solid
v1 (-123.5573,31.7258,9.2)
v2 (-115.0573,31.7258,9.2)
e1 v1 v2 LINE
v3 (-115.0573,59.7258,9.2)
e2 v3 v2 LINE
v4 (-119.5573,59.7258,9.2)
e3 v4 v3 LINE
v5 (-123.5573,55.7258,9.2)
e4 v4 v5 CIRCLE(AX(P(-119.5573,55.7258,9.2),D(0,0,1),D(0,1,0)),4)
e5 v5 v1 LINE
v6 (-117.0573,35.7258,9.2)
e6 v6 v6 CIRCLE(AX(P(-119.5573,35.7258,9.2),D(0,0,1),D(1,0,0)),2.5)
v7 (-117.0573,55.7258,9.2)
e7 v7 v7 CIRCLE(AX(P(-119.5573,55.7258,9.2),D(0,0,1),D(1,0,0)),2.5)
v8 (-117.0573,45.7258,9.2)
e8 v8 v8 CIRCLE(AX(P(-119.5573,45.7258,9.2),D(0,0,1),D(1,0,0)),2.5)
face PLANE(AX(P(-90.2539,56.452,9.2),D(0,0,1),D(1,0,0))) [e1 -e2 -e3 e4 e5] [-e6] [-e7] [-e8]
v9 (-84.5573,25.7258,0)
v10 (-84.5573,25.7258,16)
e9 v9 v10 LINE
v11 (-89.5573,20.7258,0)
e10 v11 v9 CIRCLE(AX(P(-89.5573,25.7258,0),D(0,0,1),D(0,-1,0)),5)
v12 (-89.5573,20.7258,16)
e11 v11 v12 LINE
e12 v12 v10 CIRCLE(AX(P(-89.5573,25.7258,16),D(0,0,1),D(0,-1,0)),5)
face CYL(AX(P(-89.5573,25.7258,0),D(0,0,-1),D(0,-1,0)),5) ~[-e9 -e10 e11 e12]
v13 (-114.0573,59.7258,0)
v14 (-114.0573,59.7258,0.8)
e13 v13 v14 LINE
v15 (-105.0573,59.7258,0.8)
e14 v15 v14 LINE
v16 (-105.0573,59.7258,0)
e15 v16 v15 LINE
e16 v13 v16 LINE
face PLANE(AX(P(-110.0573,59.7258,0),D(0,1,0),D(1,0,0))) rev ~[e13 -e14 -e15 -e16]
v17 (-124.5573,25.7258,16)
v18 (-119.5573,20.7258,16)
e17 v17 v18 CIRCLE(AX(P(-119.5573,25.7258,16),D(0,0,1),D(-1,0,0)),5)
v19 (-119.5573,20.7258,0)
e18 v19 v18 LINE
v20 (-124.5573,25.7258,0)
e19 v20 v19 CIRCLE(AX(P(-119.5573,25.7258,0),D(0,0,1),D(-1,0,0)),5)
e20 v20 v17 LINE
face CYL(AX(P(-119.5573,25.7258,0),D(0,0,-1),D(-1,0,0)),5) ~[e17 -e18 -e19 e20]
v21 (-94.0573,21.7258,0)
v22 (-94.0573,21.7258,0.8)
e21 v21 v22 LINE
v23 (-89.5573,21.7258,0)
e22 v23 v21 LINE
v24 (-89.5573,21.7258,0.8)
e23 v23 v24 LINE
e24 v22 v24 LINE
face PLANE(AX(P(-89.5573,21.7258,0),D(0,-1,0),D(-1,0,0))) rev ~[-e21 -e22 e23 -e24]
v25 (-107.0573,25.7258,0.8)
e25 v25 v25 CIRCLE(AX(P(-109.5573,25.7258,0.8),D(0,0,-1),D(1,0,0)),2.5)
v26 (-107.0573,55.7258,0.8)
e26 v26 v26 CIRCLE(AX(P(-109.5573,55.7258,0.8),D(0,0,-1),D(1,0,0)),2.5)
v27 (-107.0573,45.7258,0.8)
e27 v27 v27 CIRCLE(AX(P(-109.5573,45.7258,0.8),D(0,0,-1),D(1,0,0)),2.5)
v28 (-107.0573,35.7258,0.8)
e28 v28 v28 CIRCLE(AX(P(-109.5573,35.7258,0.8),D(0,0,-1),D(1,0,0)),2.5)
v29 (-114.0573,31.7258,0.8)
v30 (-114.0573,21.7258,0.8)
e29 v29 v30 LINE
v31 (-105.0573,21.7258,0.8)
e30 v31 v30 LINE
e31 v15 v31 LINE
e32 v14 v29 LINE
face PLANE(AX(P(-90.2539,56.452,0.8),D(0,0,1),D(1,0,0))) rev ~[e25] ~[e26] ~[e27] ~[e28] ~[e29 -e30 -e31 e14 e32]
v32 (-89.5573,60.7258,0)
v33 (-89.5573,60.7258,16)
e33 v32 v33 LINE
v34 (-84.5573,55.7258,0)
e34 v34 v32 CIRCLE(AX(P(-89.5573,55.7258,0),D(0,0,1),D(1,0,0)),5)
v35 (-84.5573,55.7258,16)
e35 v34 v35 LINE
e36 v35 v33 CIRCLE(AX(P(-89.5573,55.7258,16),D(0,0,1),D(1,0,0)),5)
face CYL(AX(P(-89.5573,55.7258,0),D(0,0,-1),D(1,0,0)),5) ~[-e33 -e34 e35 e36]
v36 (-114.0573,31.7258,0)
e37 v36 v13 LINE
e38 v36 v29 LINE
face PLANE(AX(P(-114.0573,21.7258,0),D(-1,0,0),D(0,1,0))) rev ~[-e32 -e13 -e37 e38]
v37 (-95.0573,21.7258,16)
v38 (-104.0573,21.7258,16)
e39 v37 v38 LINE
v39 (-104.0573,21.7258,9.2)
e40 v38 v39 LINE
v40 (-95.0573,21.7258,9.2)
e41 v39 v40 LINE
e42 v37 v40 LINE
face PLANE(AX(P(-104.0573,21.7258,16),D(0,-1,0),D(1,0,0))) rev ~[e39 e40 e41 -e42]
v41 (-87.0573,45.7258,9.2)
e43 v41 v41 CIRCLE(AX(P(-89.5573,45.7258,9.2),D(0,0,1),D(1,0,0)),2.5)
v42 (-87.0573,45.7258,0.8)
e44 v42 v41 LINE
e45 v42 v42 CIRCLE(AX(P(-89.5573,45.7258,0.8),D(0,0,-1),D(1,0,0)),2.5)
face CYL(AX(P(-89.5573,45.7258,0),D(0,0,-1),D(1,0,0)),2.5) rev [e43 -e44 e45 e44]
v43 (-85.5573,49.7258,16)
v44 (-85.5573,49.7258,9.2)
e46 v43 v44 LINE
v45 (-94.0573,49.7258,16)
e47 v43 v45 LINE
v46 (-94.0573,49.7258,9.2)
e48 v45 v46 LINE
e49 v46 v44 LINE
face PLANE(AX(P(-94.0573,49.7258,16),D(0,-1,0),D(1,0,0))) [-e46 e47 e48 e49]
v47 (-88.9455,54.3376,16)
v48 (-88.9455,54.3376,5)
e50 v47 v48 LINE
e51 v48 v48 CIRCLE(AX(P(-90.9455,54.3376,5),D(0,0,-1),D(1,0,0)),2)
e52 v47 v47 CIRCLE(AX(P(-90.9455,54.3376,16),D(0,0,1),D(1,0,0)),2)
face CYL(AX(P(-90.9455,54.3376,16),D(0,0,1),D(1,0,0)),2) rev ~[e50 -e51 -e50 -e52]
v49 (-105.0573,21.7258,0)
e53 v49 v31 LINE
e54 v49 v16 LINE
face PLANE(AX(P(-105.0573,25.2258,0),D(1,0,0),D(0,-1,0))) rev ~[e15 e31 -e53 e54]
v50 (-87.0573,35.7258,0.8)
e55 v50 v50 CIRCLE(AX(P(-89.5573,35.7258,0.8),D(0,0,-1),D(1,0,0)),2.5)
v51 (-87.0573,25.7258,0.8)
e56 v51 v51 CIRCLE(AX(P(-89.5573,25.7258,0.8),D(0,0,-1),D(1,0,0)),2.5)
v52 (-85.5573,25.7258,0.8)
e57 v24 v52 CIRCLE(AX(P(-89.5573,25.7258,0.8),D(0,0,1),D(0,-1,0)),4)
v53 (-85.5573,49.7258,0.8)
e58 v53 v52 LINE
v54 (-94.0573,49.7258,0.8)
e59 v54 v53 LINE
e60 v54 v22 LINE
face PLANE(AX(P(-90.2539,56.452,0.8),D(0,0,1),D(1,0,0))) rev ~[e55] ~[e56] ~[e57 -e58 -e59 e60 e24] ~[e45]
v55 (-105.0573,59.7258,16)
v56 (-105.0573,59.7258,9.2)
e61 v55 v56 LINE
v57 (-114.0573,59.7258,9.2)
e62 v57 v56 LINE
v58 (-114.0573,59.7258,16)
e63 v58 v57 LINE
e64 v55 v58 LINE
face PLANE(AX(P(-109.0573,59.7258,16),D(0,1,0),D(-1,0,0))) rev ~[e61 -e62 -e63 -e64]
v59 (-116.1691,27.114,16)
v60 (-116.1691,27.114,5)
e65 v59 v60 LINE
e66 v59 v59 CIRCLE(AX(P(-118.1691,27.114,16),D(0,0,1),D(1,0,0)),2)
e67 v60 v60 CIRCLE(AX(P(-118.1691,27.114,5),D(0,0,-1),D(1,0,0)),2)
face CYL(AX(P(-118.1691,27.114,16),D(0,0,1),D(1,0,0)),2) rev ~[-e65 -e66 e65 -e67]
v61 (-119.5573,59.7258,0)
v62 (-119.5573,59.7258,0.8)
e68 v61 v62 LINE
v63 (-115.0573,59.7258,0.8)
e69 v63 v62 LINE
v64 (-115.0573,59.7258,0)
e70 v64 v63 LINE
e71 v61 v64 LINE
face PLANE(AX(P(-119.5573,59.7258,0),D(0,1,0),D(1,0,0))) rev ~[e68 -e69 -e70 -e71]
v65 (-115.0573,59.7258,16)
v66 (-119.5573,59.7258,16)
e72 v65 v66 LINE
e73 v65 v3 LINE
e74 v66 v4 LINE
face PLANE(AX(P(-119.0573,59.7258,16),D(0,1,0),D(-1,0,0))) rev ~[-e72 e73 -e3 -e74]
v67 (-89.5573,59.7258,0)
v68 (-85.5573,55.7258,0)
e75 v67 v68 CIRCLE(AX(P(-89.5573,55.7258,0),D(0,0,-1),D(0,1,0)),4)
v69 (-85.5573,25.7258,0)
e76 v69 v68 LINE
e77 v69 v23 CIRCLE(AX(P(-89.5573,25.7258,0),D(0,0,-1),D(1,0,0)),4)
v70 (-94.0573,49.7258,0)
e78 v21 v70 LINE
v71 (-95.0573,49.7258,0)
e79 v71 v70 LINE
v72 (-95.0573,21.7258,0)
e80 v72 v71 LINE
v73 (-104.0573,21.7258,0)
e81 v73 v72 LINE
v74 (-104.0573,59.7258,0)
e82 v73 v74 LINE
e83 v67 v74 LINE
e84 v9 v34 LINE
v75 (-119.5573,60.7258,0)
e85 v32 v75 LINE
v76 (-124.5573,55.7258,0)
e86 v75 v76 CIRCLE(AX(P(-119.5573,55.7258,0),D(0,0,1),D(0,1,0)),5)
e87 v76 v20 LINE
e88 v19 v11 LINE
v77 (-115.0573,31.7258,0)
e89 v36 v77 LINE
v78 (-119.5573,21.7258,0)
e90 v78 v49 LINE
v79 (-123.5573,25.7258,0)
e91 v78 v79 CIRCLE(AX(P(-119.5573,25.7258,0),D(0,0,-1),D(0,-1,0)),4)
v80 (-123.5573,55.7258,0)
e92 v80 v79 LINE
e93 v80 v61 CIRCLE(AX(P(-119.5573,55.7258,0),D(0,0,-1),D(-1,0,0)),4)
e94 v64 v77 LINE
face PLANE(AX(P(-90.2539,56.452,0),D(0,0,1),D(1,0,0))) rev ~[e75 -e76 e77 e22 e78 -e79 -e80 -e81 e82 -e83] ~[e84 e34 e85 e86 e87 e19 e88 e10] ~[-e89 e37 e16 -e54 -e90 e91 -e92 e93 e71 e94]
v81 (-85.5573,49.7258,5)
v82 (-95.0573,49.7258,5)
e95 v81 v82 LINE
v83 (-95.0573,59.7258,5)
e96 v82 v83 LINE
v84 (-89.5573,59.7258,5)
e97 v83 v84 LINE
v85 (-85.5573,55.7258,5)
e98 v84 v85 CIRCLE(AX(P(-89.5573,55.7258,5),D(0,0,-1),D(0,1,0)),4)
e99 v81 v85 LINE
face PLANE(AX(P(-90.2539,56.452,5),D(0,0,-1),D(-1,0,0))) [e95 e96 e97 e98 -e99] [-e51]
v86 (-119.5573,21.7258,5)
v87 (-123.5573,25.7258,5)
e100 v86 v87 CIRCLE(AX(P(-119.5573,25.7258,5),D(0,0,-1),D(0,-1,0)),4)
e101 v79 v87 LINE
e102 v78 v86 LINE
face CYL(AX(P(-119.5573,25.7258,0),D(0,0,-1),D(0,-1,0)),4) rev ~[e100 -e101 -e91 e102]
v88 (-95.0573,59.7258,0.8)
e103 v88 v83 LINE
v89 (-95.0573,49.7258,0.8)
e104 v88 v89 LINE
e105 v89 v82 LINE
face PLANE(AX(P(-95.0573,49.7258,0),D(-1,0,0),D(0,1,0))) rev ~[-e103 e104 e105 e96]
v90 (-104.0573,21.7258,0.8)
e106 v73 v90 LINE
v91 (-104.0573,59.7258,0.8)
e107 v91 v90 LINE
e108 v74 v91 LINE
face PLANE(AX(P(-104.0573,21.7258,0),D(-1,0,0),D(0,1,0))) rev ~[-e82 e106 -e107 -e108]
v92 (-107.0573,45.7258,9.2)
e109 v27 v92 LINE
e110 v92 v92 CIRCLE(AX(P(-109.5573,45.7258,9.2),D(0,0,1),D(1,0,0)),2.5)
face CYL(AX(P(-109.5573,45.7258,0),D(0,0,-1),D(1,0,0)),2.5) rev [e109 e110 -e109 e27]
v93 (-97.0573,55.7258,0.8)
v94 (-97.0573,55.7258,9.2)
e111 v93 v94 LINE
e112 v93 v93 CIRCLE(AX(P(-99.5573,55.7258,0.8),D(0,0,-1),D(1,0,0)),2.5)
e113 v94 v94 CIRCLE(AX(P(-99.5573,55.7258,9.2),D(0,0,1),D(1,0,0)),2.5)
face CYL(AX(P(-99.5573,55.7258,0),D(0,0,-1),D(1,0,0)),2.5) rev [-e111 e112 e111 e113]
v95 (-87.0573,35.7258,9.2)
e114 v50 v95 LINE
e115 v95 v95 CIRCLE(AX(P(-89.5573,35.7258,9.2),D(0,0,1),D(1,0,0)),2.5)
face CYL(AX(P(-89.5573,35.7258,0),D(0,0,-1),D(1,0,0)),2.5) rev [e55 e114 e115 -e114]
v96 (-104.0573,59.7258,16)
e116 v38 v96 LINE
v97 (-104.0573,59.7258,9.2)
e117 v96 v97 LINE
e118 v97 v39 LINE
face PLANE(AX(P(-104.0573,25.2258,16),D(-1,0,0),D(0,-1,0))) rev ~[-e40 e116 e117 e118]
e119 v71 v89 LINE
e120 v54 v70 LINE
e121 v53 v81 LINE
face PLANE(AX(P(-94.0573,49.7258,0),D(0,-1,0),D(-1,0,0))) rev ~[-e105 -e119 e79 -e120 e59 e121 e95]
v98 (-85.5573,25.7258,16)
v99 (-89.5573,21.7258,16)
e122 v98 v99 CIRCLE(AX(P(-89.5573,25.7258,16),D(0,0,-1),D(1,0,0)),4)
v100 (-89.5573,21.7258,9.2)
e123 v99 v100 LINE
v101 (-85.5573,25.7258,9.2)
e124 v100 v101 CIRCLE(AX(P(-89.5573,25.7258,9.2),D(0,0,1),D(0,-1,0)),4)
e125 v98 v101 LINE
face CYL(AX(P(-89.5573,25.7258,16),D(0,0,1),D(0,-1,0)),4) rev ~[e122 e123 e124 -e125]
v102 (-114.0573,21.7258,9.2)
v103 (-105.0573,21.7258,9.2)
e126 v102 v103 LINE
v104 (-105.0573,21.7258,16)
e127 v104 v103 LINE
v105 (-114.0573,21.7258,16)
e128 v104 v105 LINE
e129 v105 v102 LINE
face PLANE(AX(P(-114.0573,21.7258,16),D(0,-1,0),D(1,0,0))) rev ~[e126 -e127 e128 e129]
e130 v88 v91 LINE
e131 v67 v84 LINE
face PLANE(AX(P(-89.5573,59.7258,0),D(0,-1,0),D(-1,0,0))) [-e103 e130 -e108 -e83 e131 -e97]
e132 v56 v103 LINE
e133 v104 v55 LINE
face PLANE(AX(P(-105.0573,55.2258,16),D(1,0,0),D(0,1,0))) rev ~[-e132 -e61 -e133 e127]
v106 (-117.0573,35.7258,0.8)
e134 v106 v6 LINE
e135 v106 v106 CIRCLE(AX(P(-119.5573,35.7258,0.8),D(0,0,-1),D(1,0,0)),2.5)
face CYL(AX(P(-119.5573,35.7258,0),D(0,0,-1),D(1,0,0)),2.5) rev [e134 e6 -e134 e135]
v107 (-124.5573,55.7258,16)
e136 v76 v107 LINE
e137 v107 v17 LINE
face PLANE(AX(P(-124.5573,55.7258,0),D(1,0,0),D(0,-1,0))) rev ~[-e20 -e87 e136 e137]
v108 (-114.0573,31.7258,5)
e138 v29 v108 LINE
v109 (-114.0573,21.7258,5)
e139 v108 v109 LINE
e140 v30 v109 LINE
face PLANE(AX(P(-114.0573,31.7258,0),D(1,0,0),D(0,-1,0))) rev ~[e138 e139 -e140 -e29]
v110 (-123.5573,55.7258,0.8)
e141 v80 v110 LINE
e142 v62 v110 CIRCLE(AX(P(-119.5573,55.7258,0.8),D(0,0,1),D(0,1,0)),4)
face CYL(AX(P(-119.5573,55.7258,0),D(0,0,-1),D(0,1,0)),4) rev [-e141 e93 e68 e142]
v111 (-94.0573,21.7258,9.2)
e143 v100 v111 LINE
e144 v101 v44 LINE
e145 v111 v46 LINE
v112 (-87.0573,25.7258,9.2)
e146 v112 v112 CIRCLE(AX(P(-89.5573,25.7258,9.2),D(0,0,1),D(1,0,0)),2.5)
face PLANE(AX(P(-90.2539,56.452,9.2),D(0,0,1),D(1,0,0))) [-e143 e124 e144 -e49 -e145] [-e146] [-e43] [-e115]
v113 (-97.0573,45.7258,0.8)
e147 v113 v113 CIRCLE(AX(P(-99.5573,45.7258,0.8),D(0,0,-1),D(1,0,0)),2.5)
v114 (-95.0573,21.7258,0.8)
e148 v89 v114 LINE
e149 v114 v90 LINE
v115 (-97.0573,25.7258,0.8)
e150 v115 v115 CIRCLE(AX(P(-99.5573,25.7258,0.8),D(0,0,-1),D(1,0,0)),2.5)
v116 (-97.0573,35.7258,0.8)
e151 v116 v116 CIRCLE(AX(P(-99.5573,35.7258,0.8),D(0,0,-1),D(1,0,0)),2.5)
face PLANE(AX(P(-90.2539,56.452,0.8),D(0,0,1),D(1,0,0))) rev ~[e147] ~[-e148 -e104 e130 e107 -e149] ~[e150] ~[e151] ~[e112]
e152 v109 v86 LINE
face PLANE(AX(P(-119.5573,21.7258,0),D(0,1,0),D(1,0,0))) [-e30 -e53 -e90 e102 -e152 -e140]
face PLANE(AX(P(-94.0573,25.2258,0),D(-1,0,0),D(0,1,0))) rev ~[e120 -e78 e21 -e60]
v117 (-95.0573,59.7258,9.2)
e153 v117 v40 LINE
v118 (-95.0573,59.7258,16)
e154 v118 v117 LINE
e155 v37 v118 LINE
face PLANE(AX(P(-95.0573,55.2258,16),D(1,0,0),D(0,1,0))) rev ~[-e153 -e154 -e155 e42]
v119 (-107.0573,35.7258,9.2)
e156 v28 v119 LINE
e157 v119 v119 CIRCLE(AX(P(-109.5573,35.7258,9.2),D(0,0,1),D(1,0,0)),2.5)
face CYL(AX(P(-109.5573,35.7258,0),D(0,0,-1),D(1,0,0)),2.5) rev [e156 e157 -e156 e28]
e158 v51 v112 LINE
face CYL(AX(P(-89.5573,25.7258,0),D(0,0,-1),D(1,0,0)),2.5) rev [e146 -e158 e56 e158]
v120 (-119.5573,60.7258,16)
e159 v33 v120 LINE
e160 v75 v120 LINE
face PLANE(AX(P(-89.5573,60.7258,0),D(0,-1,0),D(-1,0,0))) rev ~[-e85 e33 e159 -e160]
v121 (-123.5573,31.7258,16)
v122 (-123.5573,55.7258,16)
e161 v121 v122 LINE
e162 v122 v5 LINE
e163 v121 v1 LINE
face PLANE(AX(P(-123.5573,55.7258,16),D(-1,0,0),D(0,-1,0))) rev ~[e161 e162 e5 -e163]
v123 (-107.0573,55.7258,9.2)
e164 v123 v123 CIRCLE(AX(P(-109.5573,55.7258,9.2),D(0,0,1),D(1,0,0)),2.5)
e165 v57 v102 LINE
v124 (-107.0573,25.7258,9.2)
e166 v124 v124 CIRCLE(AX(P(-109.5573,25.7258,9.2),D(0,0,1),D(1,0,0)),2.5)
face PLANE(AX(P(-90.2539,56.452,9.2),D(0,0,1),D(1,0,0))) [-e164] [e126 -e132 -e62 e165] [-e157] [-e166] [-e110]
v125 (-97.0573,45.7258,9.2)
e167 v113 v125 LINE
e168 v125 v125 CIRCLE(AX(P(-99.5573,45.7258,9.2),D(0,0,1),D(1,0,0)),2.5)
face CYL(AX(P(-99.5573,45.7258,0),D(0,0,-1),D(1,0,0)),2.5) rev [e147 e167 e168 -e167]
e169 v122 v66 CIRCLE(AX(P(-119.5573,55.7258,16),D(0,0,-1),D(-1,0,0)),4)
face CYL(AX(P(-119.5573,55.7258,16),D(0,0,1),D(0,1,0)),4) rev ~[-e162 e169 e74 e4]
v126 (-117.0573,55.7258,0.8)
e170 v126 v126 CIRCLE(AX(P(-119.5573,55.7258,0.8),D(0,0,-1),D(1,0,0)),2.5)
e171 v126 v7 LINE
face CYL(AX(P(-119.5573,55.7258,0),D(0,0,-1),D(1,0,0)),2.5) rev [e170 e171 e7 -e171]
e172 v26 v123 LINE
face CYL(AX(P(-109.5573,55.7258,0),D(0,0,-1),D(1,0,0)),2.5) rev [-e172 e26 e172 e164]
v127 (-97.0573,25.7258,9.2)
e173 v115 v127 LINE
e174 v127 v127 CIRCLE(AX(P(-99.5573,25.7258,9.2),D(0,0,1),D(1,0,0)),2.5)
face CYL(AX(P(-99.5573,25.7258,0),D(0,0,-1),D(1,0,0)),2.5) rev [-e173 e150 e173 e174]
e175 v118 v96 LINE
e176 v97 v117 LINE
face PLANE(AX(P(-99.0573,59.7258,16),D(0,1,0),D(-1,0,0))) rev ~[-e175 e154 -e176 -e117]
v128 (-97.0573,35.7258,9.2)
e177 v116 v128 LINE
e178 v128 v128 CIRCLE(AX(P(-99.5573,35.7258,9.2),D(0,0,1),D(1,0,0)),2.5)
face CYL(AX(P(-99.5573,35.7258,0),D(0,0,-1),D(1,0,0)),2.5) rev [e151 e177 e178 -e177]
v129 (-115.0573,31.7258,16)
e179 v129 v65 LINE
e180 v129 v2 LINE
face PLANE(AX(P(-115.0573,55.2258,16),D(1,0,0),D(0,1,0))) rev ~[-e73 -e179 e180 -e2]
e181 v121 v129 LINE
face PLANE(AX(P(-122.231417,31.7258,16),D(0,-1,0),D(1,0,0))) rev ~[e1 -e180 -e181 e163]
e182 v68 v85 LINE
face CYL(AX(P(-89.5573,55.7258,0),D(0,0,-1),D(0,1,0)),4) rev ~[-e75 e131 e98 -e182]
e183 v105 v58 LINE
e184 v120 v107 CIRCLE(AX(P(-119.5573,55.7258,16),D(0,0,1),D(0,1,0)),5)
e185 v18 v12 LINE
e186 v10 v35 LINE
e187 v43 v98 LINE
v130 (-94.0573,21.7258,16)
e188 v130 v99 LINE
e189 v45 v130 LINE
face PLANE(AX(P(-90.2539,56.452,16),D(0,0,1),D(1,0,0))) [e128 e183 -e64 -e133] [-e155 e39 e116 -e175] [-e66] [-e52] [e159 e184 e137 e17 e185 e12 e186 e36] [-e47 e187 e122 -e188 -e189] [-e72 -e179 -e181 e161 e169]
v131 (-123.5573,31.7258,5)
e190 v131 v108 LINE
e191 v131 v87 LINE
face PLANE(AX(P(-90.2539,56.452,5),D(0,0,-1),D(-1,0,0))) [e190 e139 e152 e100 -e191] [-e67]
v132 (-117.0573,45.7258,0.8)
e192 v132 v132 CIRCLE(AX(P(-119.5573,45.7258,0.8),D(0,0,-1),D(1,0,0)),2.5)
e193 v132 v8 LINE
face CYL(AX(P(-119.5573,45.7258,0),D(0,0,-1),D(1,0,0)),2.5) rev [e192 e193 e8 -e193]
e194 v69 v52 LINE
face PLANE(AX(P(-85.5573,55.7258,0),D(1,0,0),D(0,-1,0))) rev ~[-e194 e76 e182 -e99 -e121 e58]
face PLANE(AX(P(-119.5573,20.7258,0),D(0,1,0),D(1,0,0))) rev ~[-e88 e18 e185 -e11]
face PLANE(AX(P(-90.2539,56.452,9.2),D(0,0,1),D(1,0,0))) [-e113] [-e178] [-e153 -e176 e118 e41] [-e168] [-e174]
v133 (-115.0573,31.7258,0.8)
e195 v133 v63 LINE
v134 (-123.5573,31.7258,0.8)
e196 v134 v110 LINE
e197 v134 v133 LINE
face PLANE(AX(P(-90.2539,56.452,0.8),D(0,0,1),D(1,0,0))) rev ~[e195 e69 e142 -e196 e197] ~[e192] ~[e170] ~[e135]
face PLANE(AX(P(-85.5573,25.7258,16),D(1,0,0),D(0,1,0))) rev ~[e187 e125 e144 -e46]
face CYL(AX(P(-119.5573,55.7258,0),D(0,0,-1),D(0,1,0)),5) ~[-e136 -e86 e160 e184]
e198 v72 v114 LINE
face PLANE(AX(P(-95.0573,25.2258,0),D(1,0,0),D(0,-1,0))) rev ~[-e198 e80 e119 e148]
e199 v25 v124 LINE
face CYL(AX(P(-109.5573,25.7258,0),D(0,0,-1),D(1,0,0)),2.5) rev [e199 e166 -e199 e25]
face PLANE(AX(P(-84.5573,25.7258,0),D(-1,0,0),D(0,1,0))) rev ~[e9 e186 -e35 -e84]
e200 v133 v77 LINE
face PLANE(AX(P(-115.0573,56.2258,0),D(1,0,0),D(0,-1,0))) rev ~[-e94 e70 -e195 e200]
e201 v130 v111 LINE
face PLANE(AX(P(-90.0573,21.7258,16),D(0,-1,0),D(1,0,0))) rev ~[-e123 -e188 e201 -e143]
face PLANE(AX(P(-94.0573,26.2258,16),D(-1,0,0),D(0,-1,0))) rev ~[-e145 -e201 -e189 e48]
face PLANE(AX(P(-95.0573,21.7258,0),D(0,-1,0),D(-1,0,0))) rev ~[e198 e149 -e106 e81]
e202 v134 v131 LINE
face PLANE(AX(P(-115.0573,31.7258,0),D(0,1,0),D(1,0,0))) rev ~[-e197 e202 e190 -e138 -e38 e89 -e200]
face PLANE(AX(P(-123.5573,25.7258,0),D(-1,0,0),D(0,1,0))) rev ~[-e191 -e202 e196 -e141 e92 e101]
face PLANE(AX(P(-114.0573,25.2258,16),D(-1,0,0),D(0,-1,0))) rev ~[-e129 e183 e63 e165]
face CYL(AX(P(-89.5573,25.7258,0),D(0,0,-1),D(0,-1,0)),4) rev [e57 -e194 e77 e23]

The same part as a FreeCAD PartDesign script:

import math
import FreeCAD as App
import Part
import Sketcher
Q = App.Units.Quantity


def add_polygon(sketch, points):
    """Adds a closed chain of lines whose ends are joined by coincident constraints."""
    first, n = sketch.GeometryCount, len(points)
    for a, b in zip(points, points[1:] + points[:1]):
        sketch.addGeometry(Part.LineSegment(App.Vector(*a, 0), App.Vector(*b, 0)), False)
    for i in range(n):
        sketch.addConstraint(Sketcher.Constraint("Coincident", first + i, 2, first + (i + 1) % n, 1))

doc = App.newDocument("Part")
body = doc.addObject("PartDesign::Body", "Body")
body.AllowCompound = True

sketch1 = body.newObject("Sketcher::SketchObject", "Sketch")
sketch1.AttachmentSupport = (doc.getObject("XY_Plane"), [""])
sketch1.MapMode = "FlatFace"
sketch1.addGeometry(Part.ArcOfCircle(Part.Circle(App.Vector(-89.6, 55.7, 0), App.Vector(0, 0, 1), 4), math.radians(0), math.radians(90)), False)
sketch1.addGeometry(Part.LineSegment(App.Vector(-89.6, 59.7, 0), App.Vector(-94.1, 59.7, 0)), False)
sketch1.addGeometry(Part.LineSegment(App.Vector(-94.1, 59.7, 0), App.Vector(-94.1, 21.7, 0)), False)
sketch1.addGeometry(Part.LineSegment(App.Vector(-94.1, 21.7, 0), App.Vector(-89.6, 21.7, 0)), False)
sketch1.addGeometry(Part.ArcOfCircle(Part.Circle(App.Vector(-89.6, 25.7, 0), App.Vector(0, 0, 1), 4), math.radians(-90), math.radians(0)), False)
sketch1.addGeometry(Part.LineSegment(App.Vector(-85.6, 25.7, 0), App.Vector(-85.6, 55.7, 0)), False)
add_polygon(sketch1, [(-95.1, 21.7), (-95.1, 59.7), (-104.1, 59.7), (-104.1, 21.7)])
add_polygon(sketch1, [(-105.1, 21.7), (-105.1, 59.7), (-114.1, 59.7), (-114.1, 21.7)])
sketch1.addGeometry(Part.ArcOfCircle(Part.Circle(App.Vector(-119.6, 25.7, 0), App.Vector(0, 0, 1), 4), math.radians(180), math.radians(270)), False)
sketch1.addGeometry(Part.LineSegment(App.Vector(-119.6, 21.7, 0), App.Vector(-115.1, 21.7, 0)), False)
sketch1.addGeometry(Part.LineSegment(App.Vector(-115.1, 21.7, 0), App.Vector(-115.1, 59.7, 0)), False)
sketch1.addGeometry(Part.LineSegment(App.Vector(-115.1, 59.7, 0), App.Vector(-119.6, 59.7, 0)), False)
sketch1.addGeometry(Part.ArcOfCircle(Part.Circle(App.Vector(-119.6, 55.7, 0), App.Vector(0, 0, 1), 4), math.radians(90), math.radians(180)), False)
sketch1.addGeometry(Part.LineSegment(App.Vector(-123.6, 55.7, 0), App.Vector(-123.6, 25.7, 0)), False)
sketch1.addConstraint([
    Sketcher.Constraint("Tangent", 0, 2, 1, 1),
    Sketcher.Constraint("Coincident", 1, 2, 2, 1),
    Sketcher.Constraint("Coincident", 2, 2, 3, 1),
    Sketcher.Constraint("Tangent", 3, 2, 4, 1),
    Sketcher.Constraint("Tangent", 4, 2, 5, 1),
    Sketcher.Constraint("Tangent", 5, 2, 0, 1),
    Sketcher.Constraint("Tangent", 14, 2, 15, 1),
    Sketcher.Constraint("Coincident", 15, 2, 16, 1),
    Sketcher.Constraint("Coincident", 16, 2, 17, 1),
    Sketcher.Constraint("Tangent", 17, 2, 18, 1),
    Sketcher.Constraint("Tangent", 18, 2, 19, 1),
    Sketcher.Constraint("Tangent", 19, 2, 14, 1),
    Sketcher.Constraint("Horizontal", 1),
    Sketcher.Constraint("Vertical", 2),
    Sketcher.Constraint("Horizontal", 3),
    Sketcher.Constraint("Vertical", 5),
    Sketcher.Constraint("Vertical", 6),
    Sketcher.Constraint("Horizontal", 7),
    Sketcher.Constraint("Vertical", 8),
    Sketcher.Constraint("Horizontal", 9),
    Sketcher.Constraint("Vertical", 10),
    Sketcher.Constraint("Horizontal", 11),
    Sketcher.Constraint("Vertical", 12),
    Sketcher.Constraint("Horizontal", 13),
    Sketcher.Constraint("Horizontal", 15),
    Sketcher.Constraint("Vertical", 16),
    Sketcher.Constraint("Horizontal", 17),
    Sketcher.Constraint("Vertical", 19),
    Sketcher.Constraint("Equal", 0, 4),
    Sketcher.Constraint("Equal", 4, 14),
    Sketcher.Constraint("Equal", 14, 18),
    Sketcher.Constraint("Horizontal", 4, 3, 14, 3),
    Sketcher.Constraint("Horizontal", 0, 3, 18, 3),
    Sketcher.Constraint("Horizontal", 1, 2, 6, 2),
    Sketcher.Constraint("Horizontal", 3, 2, 8, 2),
    Sketcher.Constraint("Horizontal", 7, 2, 10, 2),
    Sketcher.Constraint("Horizontal", 9, 2, 12, 2),
    Sketcher.Constraint("Equal", 9, 11),
    Sketcher.Constraint("Equal", 3, 15),
    Sketcher.Constraint("Radius", 0, Q("4 mm")),
    Sketcher.Constraint("DistanceX", 7, 2, 7, 1, Q("9 mm")),
    Sketcher.Constraint("DistanceY", 2, 2, 2, 1, Q("38 mm")),
    Sketcher.Constraint("DistanceX", 1, 2, 1, 1, Q("4.5 mm")),
    Sketcher.Constraint("DistanceX", 14, 3, 4, 3, Q("30 mm")),
    Sketcher.Constraint("DistanceX", 6, 2, 1, 2, Q("1 mm")),
    Sketcher.Constraint("DistanceX", 10, 2, 7, 2, Q("1 mm")),
    Sketcher.Constraint("DistanceX", 0, 3, -1, 1, Q("89.5573 mm")),
    Sketcher.Constraint("DistanceY", -1, 1, 0, 3, Q("55.7258 mm")),
])
pad1 = body.newObject("PartDesign::Pad", "Pad")
pad1.Profile = sketch1
pad1.Length = 16

sketch2 = body.newObject("Sketcher::SketchObject", "Sketch001")
sketch2.AttachmentSupport = (doc.getObject("XY_Plane"), [""])
sketch2.MapMode = "FlatFace"
sketch2.addGeometry(Part.LineSegment(App.Vector(-119.6, 20.7, 0), App.Vector(-89.6, 20.7, 0)), False)
sketch2.addGeometry(Part.ArcOfCircle(Part.Circle(App.Vector(-89.6, 25.7, 0), App.Vector(0, 0, 1), 5), math.radians(-90), math.radians(0)), False)
sketch2.addGeometry(Part.LineSegment(App.Vector(-84.6, 25.7, 0), App.Vector(-84.6, 55.7, 0)), False)
sketch2.addGeometry(Part.ArcOfCircle(Part.Circle(App.Vector(-89.6, 55.7, 0), App.Vector(0, 0, 1), 5), math.radians(0), math.radians(90)), False)
sketch2.addGeometry(Part.LineSegment(App.Vector(-89.6, 60.7, 0), App.Vector(-119.6, 60.7, 0)), False)
sketch2.addGeometry(Part.ArcOfCircle(Part.Circle(App.Vector(-119.6, 55.7, 0), App.Vector(0, 0, 1), 5), math.radians(90), math.radians(180)), False)
sketch2.addGeometry(Part.LineSegment(App.Vector(-124.6, 55.7, 0), App.Vector(-124.6, 25.7, 0)), False)
sketch2.addGeometry(Part.ArcOfCircle(Part.Circle(App.Vector(-119.6, 25.7, 0), App.Vector(0, 0, 1), 5), math.radians(180), math.radians(270)), False)
sketch2.addGeometry(Part.ArcOfCircle(Part.Circle(App.Vector(-119.6, 25.7, 0), App.Vector(0, 0, 1), 4), math.radians(180), math.radians(270)), False)
sketch2.addGeometry(Part.LineSegment(App.Vector(-123.6, 25.7, 0), App.Vector(-123.6, 55.7, 0)), False)
sketch2.addGeometry(Part.ArcOfCircle(Part.Circle(App.Vector(-119.6, 55.7, 0), App.Vector(0, 0, 1), 4), math.radians(90), math.radians(180)), False)
sketch2.addGeometry(Part.LineSegment(App.Vector(-119.6, 59.7, 0), App.Vector(-115.1, 59.7, 0)), False)
sketch2.addGeometry(Part.LineSegment(App.Vector(-115.1, 59.7, 0), App.Vector(-115.1, 21.7, 0)), False)
sketch2.addGeometry(Part.LineSegment(App.Vector(-115.1, 21.7, 0), App.Vector(-119.6, 21.7, 0)), False)
add_polygon(sketch2, [(-105.1, 59.7), (-105.1, 21.7), (-114.1, 21.7), (-114.1, 59.7)])
add_polygon(sketch2, [(-95.1, 59.7), (-95.1, 21.7), (-104.1, 21.7), (-104.1, 59.7)])
sketch2.addGeometry(Part.ArcOfCircle(Part.Circle(App.Vector(-89.6, 55.7, 0), App.Vector(0, 0, 1), 4), math.radians(0), math.radians(90)), False)
sketch2.addGeometry(Part.LineSegment(App.Vector(-85.6, 55.7, 0), App.Vector(-85.6, 25.7, 0)), False)
sketch2.addGeometry(Part.ArcOfCircle(Part.Circle(App.Vector(-89.6, 25.7, 0), App.Vector(0, 0, 1), 4), math.radians(-90), math.radians(0)), False)
sketch2.addGeometry(Part.LineSegment(App.Vector(-89.6, 21.7, 0), App.Vector(-94.1, 21.7, 0)), False)
sketch2.addGeometry(Part.LineSegment(App.Vector(-94.1, 21.7, 0), App.Vector(-94.1, 59.7, 0)), False)
sketch2.addGeometry(Part.LineSegment(App.Vector(-94.1, 59.7, 0), App.Vector(-89.6, 59.7, 0)), False)
sketch2.addConstraint([
    Sketcher.Constraint("Tangent", 0, 2, 1, 1),
    Sketcher.Constraint("Tangent", 1, 2, 2, 1),
    Sketcher.Constraint("Tangent", 2, 2, 3, 1),
    Sketcher.Constraint("Tangent", 3, 2, 4, 1),
    Sketcher.Constraint("Tangent", 4, 2, 5, 1),
    Sketcher.Constraint("Tangent", 5, 2, 6, 1),
    Sketcher.Constraint("Tangent", 6, 2, 7, 1),
    Sketcher.Constraint("Tangent", 7, 2, 0, 1),
    Sketcher.Constraint("Tangent", 8, 1, 9, 1),
    Sketcher.Constraint("Tangent", 9, 2, 10, 2),
    Sketcher.Constraint("Tangent", 10, 1, 11, 1),
    Sketcher.Constraint("Coincident", 11, 2, 12, 1),
    Sketcher.Constraint("Coincident", 12, 2, 13, 1),
    Sketcher.Constraint("Tangent", 13, 2, 8, 2),
    Sketcher.Constraint("Tangent", 22, 1, 23, 1),
    Sketcher.Constraint("Tangent", 23, 2, 24, 2),
    Sketcher.Constraint("Tangent", 24, 1, 25, 1),
    Sketcher.Constraint("Coincident", 25, 2, 26, 1),
    Sketcher.Constraint("Coincident", 26, 2, 27, 1),
    Sketcher.Constraint("Tangent", 27, 2, 22, 2),
    Sketcher.Constraint("Horizontal", 0),
    Sketcher.Constraint("Vertical", 2),
    Sketcher.Constraint("Horizontal", 4),
    Sketcher.Constraint("Vertical", 6),
    Sketcher.Constraint("Vertical", 9),
    Sketcher.Constraint("Horizontal", 11),
    Sketcher.Constraint("Vertical", 12),
    Sketcher.Constraint("Horizontal", 13),
    Sketcher.Constraint("Vertical", 14),
    Sketcher.Constraint("Horizontal", 15),
    Sketcher.Constraint("Vertical", 16),
    Sketcher.Constraint("Horizontal", 17),
    Sketcher.Constraint("Vertical", 18),
    Sketcher.Constraint("Horizontal", 19),
    Sketcher.Constraint("Vertical", 20),
    Sketcher.Constraint("Horizontal", 21),
    Sketcher.Constraint("Vertical", 23),
    Sketcher.Constraint("Horizontal", 25),
    Sketcher.Constraint("Vertical", 26),
    Sketcher.Constraint("Horizontal", 27),
    Sketcher.Constraint("Coincident", 8, 3, 7, 3),
    Sketcher.Constraint("Coincident", 10, 3, 5, 3),
    Sketcher.Constraint("Coincident", 22, 3, 3, 3),
    Sketcher.Constraint("Coincident", 24, 3, 1, 3),
    Sketcher.Constraint("Equal", 1, 3),
    Sketcher.Constraint("Equal", 3, 5),
    Sketcher.Constraint("Equal", 5, 7),
    Sketcher.Constraint("Equal", 10, 22),
    Sketcher.Constraint("Horizontal", 13, 2, 14, 2),
    Sketcher.Constraint("Horizontal", 11, 2, 16, 2),
    Sketcher.Constraint("Horizontal", 15, 2, 18, 2),
    Sketcher.Constraint("Horizontal", 17, 2, 20, 2),
    Sketcher.Constraint("Equal", 17, 19),
    Sketcher.Constraint("Equal", 13, 25),
    Sketcher.Constraint("Equal", 4, 2),
    Sketcher.Constraint("Radius", 1, Q("5 mm")),
    Sketcher.Constraint("Radius", 8, Q("4 mm")),
    Sketcher.Constraint("DistanceX", 0, 1, 0, 2, Q("30 mm")),
    Sketcher.Constraint("DistanceX", 15, 2, 15, 1, Q("9 mm")),
    Sketcher.Constraint("DistanceX", 11, 1, 11, 2, Q("4.5 mm")),
    Sketcher.Constraint("DistanceX", 12, 2, 14, 2, Q("10 mm")),
    Sketcher.Constraint("DistanceX", 14, 2, 18, 2, Q("10 mm")),
    Sketcher.Constraint("DistanceX", 1, 3, -1, 1, Q("89.5573 mm")),
    Sketcher.Constraint("DistanceY", -1, 1, 1, 3, Q("25.7258 mm")),
])
pad2 = body.newObject("PartDesign::Pad", "Pad001")
pad2.Profile = sketch2
pad2.Length = 16

sketch3 = body.newObject("Sketcher::SketchObject", "Sketch002")
sketch3.AttachmentSupport = (doc.getObject("XY_Plane"), [""])
sketch3.MapMode = "FlatFace"
sketch3.addGeometry(Part.ArcOfCircle(Part.Circle(App.Vector(-89.6, 55.7, 0), App.Vector(0, 0, 1), 4), math.radians(0), math.radians(90)), False)
sketch3.addGeometry(Part.LineSegment(App.Vector(-89.6, 59.7, 0), App.Vector(-94.1, 59.7, 0)), False)
sketch3.addGeometry(Part.LineSegment(App.Vector(-94.1, 59.7, 0), App.Vector(-94.1, 21.7, 0)), False)
sketch3.addGeometry(Part.LineSegment(App.Vector(-94.1, 21.7, 0), App.Vector(-89.6, 21.7, 0)), False)
sketch3.addGeometry(Part.ArcOfCircle(Part.Circle(App.Vector(-89.6, 25.7, 0), App.Vector(0, 0, 1), 4), math.radians(-90), math.radians(0)), False)
sketch3.addGeometry(Part.LineSegment(App.Vector(-85.6, 25.7, 0), App.Vector(-85.6, 55.7, 0)), False)
add_polygon(sketch3, [(-95.1, 21.7), (-95.1, 59.7), (-104.1, 59.7), (-104.1, 21.7)])
add_polygon(sketch3, [(-105.1, 21.7), (-105.1, 59.7), (-114.1, 59.7), (-114.1, 21.7)])
sketch3.addGeometry(Part.ArcOfCircle(Part.Circle(App.Vector(-119.6, 25.7, 0), App.Vector(0, 0, 1), 4), math.radians(180), math.radians(270)), False)
sketch3.addGeometry(Part.LineSegment(App.Vector(-119.6, 21.7, 0), App.Vector(-115.1, 21.7, 0)), False)
sketch3.addGeometry(Part.LineSegment(App.Vector(-115.1, 21.7, 0), App.Vector(-115.1, 59.7, 0)), False)
sketch3.addGeometry(Part.LineSegment(App.Vector(-115.1, 59.7, 0), App.Vector(-119.6, 59.7, 0)), False)
sketch3.addGeometry(Part.ArcOfCircle(Part.Circle(App.Vector(-119.6, 55.7, 0), App.Vector(0, 0, 1), 4), math.radians(90), math.radians(180)), False)
sketch3.addGeometry(Part.LineSegment(App.Vector(-123.6, 55.7, 0), App.Vector(-123.6, 25.7, 0)), False)
sketch3.addConstraint([
    Sketcher.Constraint("Tangent", 0, 2, 1, 1),
    Sketcher.Constraint("Coincident", 1, 2, 2, 1),
    Sketcher.Constraint("Coincident", 2, 2, 3, 1),
    Sketcher.Constraint("Tangent", 3, 2, 4, 1),
    Sketcher.Constraint("Tangent", 4, 2, 5, 1),
    Sketcher.Constraint("Tangent", 5, 2, 0, 1),
    Sketcher.Constraint("Tangent", 14, 2, 15, 1),
    Sketcher.Constraint("Coincident", 15, 2, 16, 1),
    Sketcher.Constraint("Coincident", 16, 2, 17, 1),
    Sketcher.Constraint("Tangent", 17, 2, 18, 1),
    Sketcher.Constraint("Tangent", 18, 2, 19, 1),
    Sketcher.Constraint("Tangent", 19, 2, 14, 1),
    Sketcher.Constraint("Horizontal", 1),
    Sketcher.Constraint("Vertical", 2),
    Sketcher.Constraint("Horizontal", 3),
    Sketcher.Constraint("Vertical", 5),
    Sketcher.Constraint("Vertical", 6),
    Sketcher.Constraint("Horizontal", 7),
    Sketcher.Constraint("Vertical", 8),
    Sketcher.Constraint("Horizontal", 9),
    Sketcher.Constraint("Vertical", 10),
    Sketcher.Constraint("Horizontal", 11),
    Sketcher.Constraint("Vertical", 12),
    Sketcher.Constraint("Horizontal", 13),
    Sketcher.Constraint("Horizontal", 15),
    Sketcher.Constraint("Vertical", 16),
    Sketcher.Constraint("Horizontal", 17),
    Sketcher.Constraint("Vertical", 19),
    Sketcher.Constraint("Equal", 0, 4),
    Sketcher.Constraint("Equal", 4, 14),
    Sketcher.Constraint("Equal", 14, 18),
    Sketcher.Constraint("Horizontal", 4, 3, 14, 3),
    Sketcher.Constraint("Horizontal", 0, 3, 18, 3),
    Sketcher.Constraint("Horizontal", 1, 2, 6, 2),
    Sketcher.Constraint("Horizontal", 3, 2, 8, 2),
    Sketcher.Constraint("Horizontal", 7, 2, 10, 2),
    Sketcher.Constraint("Horizontal", 9, 2, 12, 2),
    Sketcher.Constraint("Equal", 9, 11),
    Sketcher.Constraint("Equal", 3, 15),
    Sketcher.Constraint("Radius", 0, Q("4 mm")),
    Sketcher.Constraint("DistanceX", 7, 2, 7, 1, Q("9 mm")),
    Sketcher.Constraint("DistanceY", 2, 2, 2, 1, Q("38 mm")),
    Sketcher.Constraint("DistanceX", 1, 2, 1, 1, Q("4.5 mm")),
    Sketcher.Constraint("DistanceX", 14, 3, 4, 3, Q("30 mm")),
    Sketcher.Constraint("DistanceX", 6, 2, 1, 2, Q("1 mm")),
    Sketcher.Constraint("DistanceX", 10, 2, 7, 2, Q("1 mm")),
    Sketcher.Constraint("DistanceX", 0, 3, -1, 1, Q("89.5573 mm")),
    Sketcher.Constraint("DistanceY", -1, 1, 0, 3, Q("55.7258 mm")),
])
pocket1 = body.newObject("PartDesign::Pocket", "Pocket")
pocket1.Profile = sketch3
pocket1.Length = 0.8
pocket1.Reversed = True

sketch4 = body.newObject("Sketcher::SketchObject", "Sketch003")
sketch4.AttachmentSupport = (doc.getObject("XY_Plane"), [""])
sketch4.MapMode = "FlatFace"
sketch4.addGeometry([
    Part.Circle(App.Vector(-119.6, 45.7, 0), App.Vector(0, 0, 1), 2.5),
    Part.Circle(App.Vector(-119.6, 35.7, 0), App.Vector(0, 0, 1), 2.5),
    Part.Circle(App.Vector(-119.6, 55.7, 0), App.Vector(0, 0, 1), 2.5),
    Part.Circle(App.Vector(-109.6, 45.7, 0), App.Vector(0, 0, 1), 2.5),
    Part.Circle(App.Vector(-109.6, 35.7, 0), App.Vector(0, 0, 1), 2.5),
    Part.Circle(App.Vector(-109.6, 25.7, 0), App.Vector(0, 0, 1), 2.5),
    Part.Circle(App.Vector(-109.6, 55.7, 0), App.Vector(0, 0, 1), 2.5),
    Part.Circle(App.Vector(-99.6, 45.7, 0), App.Vector(0, 0, 1), 2.5),
    Part.Circle(App.Vector(-99.6, 35.7, 0), App.Vector(0, 0, 1), 2.5),
    Part.Circle(App.Vector(-99.6, 25.7, 0), App.Vector(0, 0, 1), 2.5),
    Part.Circle(App.Vector(-99.6, 55.7, 0), App.Vector(0, 0, 1), 2.5),
    Part.Circle(App.Vector(-89.6, 45.7, 0), App.Vector(0, 0, 1), 2.5),
    Part.Circle(App.Vector(-89.6, 35.7, 0), App.Vector(0, 0, 1), 2.5),
    Part.Circle(App.Vector(-89.6, 25.7, 0), App.Vector(0, 0, 1), 2.5),
], False)
sketch4.addConstraint([
    Sketcher.Constraint("Equal", 0, 1),
    Sketcher.Constraint("Equal", 1, 2),
    Sketcher.Constraint("Equal", 2, 3),
    Sketcher.Constraint("Equal", 3, 4),
    Sketcher.Constraint("Equal", 4, 5),
    Sketcher.Constraint("Equal", 5, 6),
    Sketcher.Constraint("Equal", 6, 7),
    Sketcher.Constraint("Equal", 7, 8),
    Sketcher.Constraint("Equal", 8, 9),
    Sketcher.Constraint("Equal", 9, 10),
    Sketcher.Constraint("Equal", 10, 11),
    Sketcher.Constraint("Equal", 11, 12),
    Sketcher.Constraint("Equal", 12, 13),
    Sketcher.Constraint("Horizontal", 0, 3, 3, 3),
    Sketcher.Constraint("Horizontal", 1, 3, 4, 3),
    Sketcher.Constraint("Horizontal", 2, 3, 6, 3),
    Sketcher.Constraint("Horizontal", 3, 3, 7, 3),
    Sketcher.Constraint("Horizontal", 4, 3, 8, 3),
    Sketcher.Constraint("Horizontal", 5, 3, 9, 3),
    Sketcher.Constraint("Horizontal", 6, 3, 10, 3),
    Sketcher.Constraint("Horizontal", 7, 3, 11, 3),
    Sketcher.Constraint("Horizontal", 8, 3, 12, 3),
    Sketcher.Constraint("Horizontal", 9, 3, 13, 3),
    Sketcher.Constraint("Vertical", 0, 3, 1, 3),
    Sketcher.Constraint("Vertical", 1, 3, 2, 3),
    Sketcher.Constraint("Vertical", 3, 3, 4, 3),
    Sketcher.Constraint("Vertical", 4, 3, 5, 3),
    Sketcher.Constraint("Vertical", 5, 3, 6, 3),
    Sketcher.Constraint("Vertical", 7, 3, 8, 3),
    Sketcher.Constraint("Vertical", 8, 3, 9, 3),
    Sketcher.Constraint("Vertical", 9, 3, 10, 3),
    Sketcher.Constraint("Vertical", 11, 3, 12, 3),
    Sketcher.Constraint("Vertical", 12, 3, 13, 3),
    Sketcher.Constraint("Diameter", 0, Q("5 mm")),
    Sketcher.Constraint("DistanceY", 1, 3, 0, 3, Q("10 mm")),
    Sketcher.Constraint("DistanceY", 0, 3, 2, 3, Q("10 mm")),
    Sketcher.Constraint("DistanceX", 0, 3, 3, 3, Q("10 mm")),
    Sketcher.Constraint("DistanceY", 5, 3, 4, 3, Q("10 mm")),
    Sketcher.Constraint("DistanceX", 3, 3, 7, 3, Q("10 mm")),
    Sketcher.Constraint("DistanceX", 7, 3, 11, 3, Q("10 mm")),
    Sketcher.Constraint("DistanceX", 0, 3, -1, 1, Q("119.5573 mm")),
    Sketcher.Constraint("DistanceY", -1, 1, 0, 3, Q("45.7258 mm")),
])
pocket2 = body.newObject("PartDesign::Pocket", "Pocket001")
pocket2.Profile = sketch4
pocket2.Length = 9.2
pocket2.Reversed = True

sketch5 = body.newObject("Sketcher::SketchObject", "Sketch004")
sketch5.AttachmentSupport = (doc.getObject("XY_Plane"), [""])
sketch5.MapMode = "FlatFace"
sketch5.AttachmentOffset = App.Placement(App.Vector(0, 0, 16), App.Rotation())
sketch5.addGeometry(Part.LineSegment(App.Vector(-85.6, 25.7, 0), App.Vector(-85.6, 55.7, 0)), False)
sketch5.addGeometry(Part.ArcOfCircle(Part.Circle(App.Vector(-89.6, 55.7, 0), App.Vector(0, 0, 1), 4), math.radians(0), math.radians(90)), False)
sketch5.addGeometry(Part.LineSegment(App.Vector(-89.6, 59.7, 0), App.Vector(-94.1, 59.7, 0)), False)
sketch5.addGeometry(Part.LineSegment(App.Vector(-94.1, 59.7, 0), App.Vector(-94.1, 21.7, 0)), False)
sketch5.addGeometry(Part.LineSegment(App.Vector(-94.1, 21.7, 0), App.Vector(-89.6, 21.7, 0)), False)
sketch5.addGeometry(Part.ArcOfCircle(Part.Circle(App.Vector(-89.6, 25.7, 0), App.Vector(0, 0, 1), 4), math.radians(-90), math.radians(0)), False)
add_polygon(sketch5, [(-104.1, 21.7), (-95.1, 21.7), (-95.1, 59.7), (-104.1, 59.7)])
add_polygon(sketch5, [(-114.1, 21.7), (-105.1, 21.7), (-105.1, 59.7), (-114.1, 59.7)])
sketch5.addGeometry(Part.LineSegment(App.Vector(-123.6, 55.7, 0), App.Vector(-123.6, 25.7, 0)), False)
sketch5.addGeometry(Part.ArcOfCircle(Part.Circle(App.Vector(-119.6, 25.7, 0), App.Vector(0, 0, 1), 4), math.radians(180), math.radians(270)), False)
sketch5.addGeometry(Part.LineSegment(App.Vector(-119.6, 21.7, 0), App.Vector(-115.1, 21.7, 0)), False)
sketch5.addGeometry(Part.LineSegment(App.Vector(-115.1, 21.7, 0), App.Vector(-115.1, 59.7, 0)), False)
sketch5.addGeometry(Part.LineSegment(App.Vector(-115.1, 59.7, 0), App.Vector(-119.6, 59.7, 0)), False)
sketch5.addGeometry(Part.ArcOfCircle(Part.Circle(App.Vector(-119.6, 55.7, 0), App.Vector(0, 0, 1), 4), math.radians(90), math.radians(180)), False)
sketch5.addConstraint([
    Sketcher.Constraint("Tangent", 0, 2, 1, 1),
    Sketcher.Constraint("Tangent", 1, 2, 2, 1),
    Sketcher.Constraint("Coincident", 2, 2, 3, 1),
    Sketcher.Constraint("Coincident", 3, 2, 4, 1),
    Sketcher.Constraint("Tangent", 4, 2, 5, 1),
    Sketcher.Constraint("Tangent", 5, 2, 0, 1),
    Sketcher.Constraint("Tangent", 14, 2, 15, 1),
    Sketcher.Constraint("Tangent", 15, 2, 16, 1),
    Sketcher.Constraint("Coincident", 16, 2, 17, 1),
    Sketcher.Constraint("Coincident", 17, 2, 18, 1),
    Sketcher.Constraint("Tangent", 18, 2, 19, 1),
    Sketcher.Constraint("Tangent", 19, 2, 14, 1),
    Sketcher.Constraint("Vertical", 0),
    Sketcher.Constraint("Horizontal", 2),
    Sketcher.Constraint("Vertical", 3),
    Sketcher.Constraint("Horizontal", 4),
    Sketcher.Constraint("Horizontal", 6),
    Sketcher.Constraint("Vertical", 7),
    Sketcher.Constraint("Horizontal", 8),
    Sketcher.Constraint("Vertical", 9),
    Sketcher.Constraint("Horizontal", 10),
    Sketcher.Constraint("Vertical", 11),
    Sketcher.Constraint("Horizontal", 12),
    Sketcher.Constraint("Vertical", 13),
    Sketcher.Constraint("Vertical", 14),
    Sketcher.Constraint("Horizontal", 16),
    Sketcher.Constraint("Vertical", 17),
    Sketcher.Constraint("Horizontal", 18),
    Sketcher.Constraint("Equal", 1, 5),
    Sketcher.Constraint("Equal", 5, 15),
    Sketcher.Constraint("Equal", 15, 19),
    Sketcher.Constraint("Horizontal", 5, 3, 15, 3),
    Sketcher.Constraint("Horizontal", 1, 3, 19, 3),
    Sketcher.Constraint("Horizontal", 4, 2, 6, 2),
    Sketcher.Constraint("Horizontal", 2, 2, 7, 2),
    Sketcher.Constraint("Horizontal", 9, 2, 10, 2),
    Sketcher.Constraint("Horizontal", 8, 2, 11, 2),
    Sketcher.Constraint("Equal", 8, 10),
    Sketcher.Constraint("Equal", 4, 16),
    Sketcher.Constraint("Radius", 1, Q("4 mm")),
    Sketcher.Constraint("DistanceX", 6, 1, 6, 2, Q("9 mm")),
    Sketcher.Constraint("DistanceY", 0, 1, 0, 2, Q("30 mm")),
    Sketcher.Constraint("DistanceX", 2, 2, 2, 1, Q("4.5 mm")),
    Sketcher.Constraint("DistanceX", 15, 3, 5, 3, Q("30 mm")),
    Sketcher.Constraint("DistanceX", 6, 2, 3, 2, Q("1 mm")),
    Sketcher.Constraint("DistanceX", 10, 2, 9, 2, Q("1 mm")),
    Sketcher.Constraint("DistanceX", 1, 3, -1, 1, Q("89.5573 mm")),
    Sketcher.Constraint("DistanceY", -1, 1, 1, 3, Q("55.7258 mm")),
])
pocket3 = body.newObject("PartDesign::Pocket", "Pocket002")
pocket3.Profile = sketch5
pocket3.Length = 6.8

sketch6 = body.newObject("Sketcher::SketchObject", "Sketch005")
sketch6.AttachmentSupport = (doc.getObject("XY_Plane"), [""])
sketch6.MapMode = "FlatFace"
sketch6.AttachmentOffset = App.Placement(App.Vector(0, 0, 16), App.Rotation())
sketch6.addGeometry([
    Part.LineSegment(App.Vector(-94.1, 49.7, 0), App.Vector(-85.6, 49.7, 0)),
    Part.LineSegment(App.Vector(-85.6, 49.7, 0), App.Vector(-85.6, 55.7, 0)),
    Part.ArcOfCircle(Part.Circle(App.Vector(-89.6, 55.7, 0), App.Vector(0, 0, 1), 4), math.radians(0), math.radians(90)),
    Part.LineSegment(App.Vector(-89.6, 59.7, 0), App.Vector(-94.1, 59.7, 0)),
    Part.LineSegment(App.Vector(-94.1, 59.7, 0), App.Vector(-94.1, 49.7, 0)),
    Part.Circle(App.Vector(-90.9, 54.3, 0), App.Vector(0, 0, 1), 2),
    Part.LineSegment(App.Vector(-123.6, 31.7, 0), App.Vector(-123.6, 25.7, 0)),
    Part.ArcOfCircle(Part.Circle(App.Vector(-119.6, 25.7, 0), App.Vector(0, 0, 1), 4), math.radians(180), math.radians(270)),
    Part.LineSegment(App.Vector(-119.6, 21.7, 0), App.Vector(-115.1, 21.7, 0)),
    Part.LineSegment(App.Vector(-115.1, 21.7, 0), App.Vector(-115.1, 31.7, 0)),
    Part.LineSegment(App.Vector(-115.1, 31.7, 0), App.Vector(-123.6, 31.7, 0)),
    Part.Circle(App.Vector(-118.2, 27.1, 0), App.Vector(0, 0, 1), 2),
], False)
sketch6.addConstraint([
    Sketcher.Constraint("Coincident", 0, 2, 1, 1),
    Sketcher.Constraint("Tangent", 1, 2, 2, 1),
    Sketcher.Constraint("Tangent", 2, 2, 3, 1),
    Sketcher.Constraint("Coincident", 3, 2, 4, 1),
    Sketcher.Constraint("Coincident", 4, 2, 0, 1),
    Sketcher.Constraint("Tangent", 6, 2, 7, 1),
    Sketcher.Constraint("Tangent", 7, 2, 8, 1),
    Sketcher.Constraint("Coincident", 8, 2, 9, 1),
    Sketcher.Constraint("Coincident", 9, 2, 10, 1),
    Sketcher.Constraint("Coincident", 10, 2, 6, 1),
    Sketcher.Constraint("Horizontal", 0),
    Sketcher.Constraint("Vertical", 1),
    Sketcher.Constraint("Horizontal", 3),
    Sketcher.Constraint("Vertical", 4),
    Sketcher.Constraint("Vertical", 6),
    Sketcher.Constraint("Horizontal", 8),
    Sketcher.Constraint("Vertical", 9),
    Sketcher.Constraint("Horizontal", 10),
    Sketcher.Constraint("Equal", 2, 7),
    Sketcher.Constraint("Equal", 5, 11),
    Sketcher.Constraint("Equal", 3, 8),
    Sketcher.Constraint("Equal", 1, 6),
    Sketcher.Constraint("DistanceY", 4, 2, 4, 1, Q("10 mm")),
    Sketcher.Constraint("Diameter", 5, Q("4 mm")),
    Sketcher.Constraint("Radius", 2, Q("4 mm")),
    Sketcher.Constraint("DistanceX", 0, 1, 0, 2, Q("8.5 mm")),
    Sketcher.Constraint("DistanceX", 7, 3, 2, 3, Q("30 mm")),
    Sketcher.Constraint("DistanceY", 7, 3, 2, 3, Q("30 mm")),
    Sketcher.Constraint("DistanceX", 11, 3, -1, 1, Q("118.169 mm")),
    Sketcher.Constraint("DistanceY", -1, 1, 11, 3, Q("27.114 mm")),
    Sketcher.Constraint("DistanceX", 2, 3, -1, 1, Q("89.5573 mm")),
    Sketcher.Constraint("DistanceY", -1, 1, 2, 3, Q("55.7258 mm")),
    Sketcher.Constraint("DistanceX", 5, 3, -1, 1, Q("90.9455 mm")),
    Sketcher.Constraint("DistanceY", -1, 1, 5, 3, Q("54.3376 mm")),
])
pad3 = body.newObject("PartDesign::Pad", "Pad002")
pad3.Profile = sketch6
pad3.Length = 16
pad3.Reversed = True

sketch7 = body.newObject("Sketcher::SketchObject", "Sketch006")
sketch7.AttachmentSupport = (doc.getObject("XY_Plane"), [""])
sketch7.MapMode = "FlatFace"
sketch7.AttachmentOffset = App.Placement(App.Vector(0, 0, 16), App.Rotation())
sketch7.addGeometry([
    Part.Circle(App.Vector(-118.2, 27.1, 0), App.Vector(0, 0, 1), 2),
    Part.Circle(App.Vector(-90.9, 54.3, 0), App.Vector(0, 0, 1), 2),
], False)
sketch7.addConstraint([
    Sketcher.Constraint("Equal", 0, 1),
    Sketcher.Constraint("Diameter", 0, Q("4 mm")),
    Sketcher.Constraint("DistanceX", 0, 3, -1, 1, Q("118.169 mm")),
    Sketcher.Constraint("DistanceY", -1, 1, 0, 3, Q("27.114 mm")),
    Sketcher.Constraint("DistanceX", 1, 3, -1, 1, Q("90.9455 mm")),
    Sketcher.Constraint("DistanceY", -1, 1, 1, 3, Q("54.3376 mm")),
])
pocket4 = body.newObject("PartDesign::Pocket", "Pocket003")
pocket4.Profile = sketch7
pocket4.Type = "ThroughAll"

sketch8 = body.newObject("Sketcher::SketchObject", "Sketch007")
sketch8.AttachmentSupport = (doc.getObject("XY_Plane"), [""])
sketch8.MapMode = "FlatFace"
sketch8.addGeometry([
    Part.LineSegment(App.Vector(-85.6, 49.7, 0), App.Vector(-95.1, 49.7, 0)),
    Part.LineSegment(App.Vector(-95.1, 49.7, 0), App.Vector(-95.1, 59.7, 0)),
    Part.LineSegment(App.Vector(-95.1, 59.7, 0), App.Vector(-89.6, 59.7, 0)),
    Part.ArcOfCircle(Part.Circle(App.Vector(-89.6, 55.7, 0), App.Vector(0, 0, 1), 4), math.radians(0), math.radians(90)),
    Part.LineSegment(App.Vector(-85.6, 55.7, 0), App.Vector(-85.6, 49.7, 0)),
    Part.Circle(App.Vector(-90.9, 54.3, 0), App.Vector(0, 0, 1), 2),
    Part.LineSegment(App.Vector(-123.6, 25.7, 0), App.Vector(-123.6, 31.7, 0)),
    Part.LineSegment(App.Vector(-123.6, 31.7, 0), App.Vector(-114.1, 31.7, 0)),
    Part.LineSegment(App.Vector(-114.1, 31.7, 0), App.Vector(-114.1, 21.7, 0)),
    Part.LineSegment(App.Vector(-114.1, 21.7, 0), App.Vector(-119.6, 21.7, 0)),
    Part.ArcOfCircle(Part.Circle(App.Vector(-119.6, 25.7, 0), App.Vector(0, 0, 1), 4), math.radians(180), math.radians(270)),
    Part.Circle(App.Vector(-118.2, 27.1, 0), App.Vector(0, 0, 1), 2),
], False)
sketch8.addConstraint([
    Sketcher.Constraint("Coincident", 0, 2, 1, 1),
    Sketcher.Constraint("Coincident", 1, 2, 2, 1),
    Sketcher.Constraint("Tangent", 2, 2, 3, 2),
    Sketcher.Constraint("Tangent", 3, 1, 4, 1),
    Sketcher.Constraint("Coincident", 4, 2, 0, 1),
    Sketcher.Constraint("Coincident", 6, 2, 7, 1),
    Sketcher.Constraint("Coincident", 7, 2, 8, 1),
    Sketcher.Constraint("Coincident", 8, 2, 9, 1),
    Sketcher.Constraint("Tangent", 9, 2, 10, 2),
    Sketcher.Constraint("Tangent", 10, 1, 6, 1),
    Sketcher.Constraint("Horizontal", 0),
    Sketcher.Constraint("Vertical", 1),
    Sketcher.Constraint("Horizontal", 2),
    Sketcher.Constraint("Vertical", 4),
    Sketcher.Constraint("Vertical", 6),
    Sketcher.Constraint("Horizontal", 7),
    Sketcher.Constraint("Vertical", 8),
    Sketcher.Constraint("Horizontal", 9),
    Sketcher.Constraint("Equal", 3, 10),
    Sketcher.Constraint("Equal", 5, 11),
    Sketcher.Constraint("Equal", 0, 7),
    Sketcher.Constraint("Equal", 4, 6),
    Sketcher.Constraint("Diameter", 5, Q("4 mm")),
    Sketcher.Constraint("Radius", 3, Q("4 mm")),
    Sketcher.Constraint("DistanceY", 1, 1, 1, 2, Q("10 mm")),
    Sketcher.Constraint("DistanceX", 0, 2, 0, 1, Q("9.5 mm")),
    Sketcher.Constraint("DistanceX", 10, 3, 3, 3, Q("30 mm")),
    Sketcher.Constraint("DistanceY", 10, 3, 3, 3, Q("30 mm")),
    Sketcher.Constraint("DistanceX", 11, 3, -1, 1, Q("118.169 mm")),
    Sketcher.Constraint("DistanceY", -1, 1, 11, 3, Q("27.114 mm")),
    Sketcher.Constraint("DistanceX", 3, 3, -1, 1, Q("89.5573 mm")),
    Sketcher.Constraint("DistanceY", -1, 1, 3, 3, Q("55.7258 mm")),
    Sketcher.Constraint("DistanceX", 5, 3, -1, 1, Q("90.9455 mm")),
    Sketcher.Constraint("DistanceY", -1, 1, 5, 3, Q("54.3376 mm")),
])
pocket5 = body.newObject("PartDesign::Pocket", "Pocket004")
pocket5.Profile = sketch8
pocket5.Length = 5
pocket5.Reversed = True

doc.recompute()
